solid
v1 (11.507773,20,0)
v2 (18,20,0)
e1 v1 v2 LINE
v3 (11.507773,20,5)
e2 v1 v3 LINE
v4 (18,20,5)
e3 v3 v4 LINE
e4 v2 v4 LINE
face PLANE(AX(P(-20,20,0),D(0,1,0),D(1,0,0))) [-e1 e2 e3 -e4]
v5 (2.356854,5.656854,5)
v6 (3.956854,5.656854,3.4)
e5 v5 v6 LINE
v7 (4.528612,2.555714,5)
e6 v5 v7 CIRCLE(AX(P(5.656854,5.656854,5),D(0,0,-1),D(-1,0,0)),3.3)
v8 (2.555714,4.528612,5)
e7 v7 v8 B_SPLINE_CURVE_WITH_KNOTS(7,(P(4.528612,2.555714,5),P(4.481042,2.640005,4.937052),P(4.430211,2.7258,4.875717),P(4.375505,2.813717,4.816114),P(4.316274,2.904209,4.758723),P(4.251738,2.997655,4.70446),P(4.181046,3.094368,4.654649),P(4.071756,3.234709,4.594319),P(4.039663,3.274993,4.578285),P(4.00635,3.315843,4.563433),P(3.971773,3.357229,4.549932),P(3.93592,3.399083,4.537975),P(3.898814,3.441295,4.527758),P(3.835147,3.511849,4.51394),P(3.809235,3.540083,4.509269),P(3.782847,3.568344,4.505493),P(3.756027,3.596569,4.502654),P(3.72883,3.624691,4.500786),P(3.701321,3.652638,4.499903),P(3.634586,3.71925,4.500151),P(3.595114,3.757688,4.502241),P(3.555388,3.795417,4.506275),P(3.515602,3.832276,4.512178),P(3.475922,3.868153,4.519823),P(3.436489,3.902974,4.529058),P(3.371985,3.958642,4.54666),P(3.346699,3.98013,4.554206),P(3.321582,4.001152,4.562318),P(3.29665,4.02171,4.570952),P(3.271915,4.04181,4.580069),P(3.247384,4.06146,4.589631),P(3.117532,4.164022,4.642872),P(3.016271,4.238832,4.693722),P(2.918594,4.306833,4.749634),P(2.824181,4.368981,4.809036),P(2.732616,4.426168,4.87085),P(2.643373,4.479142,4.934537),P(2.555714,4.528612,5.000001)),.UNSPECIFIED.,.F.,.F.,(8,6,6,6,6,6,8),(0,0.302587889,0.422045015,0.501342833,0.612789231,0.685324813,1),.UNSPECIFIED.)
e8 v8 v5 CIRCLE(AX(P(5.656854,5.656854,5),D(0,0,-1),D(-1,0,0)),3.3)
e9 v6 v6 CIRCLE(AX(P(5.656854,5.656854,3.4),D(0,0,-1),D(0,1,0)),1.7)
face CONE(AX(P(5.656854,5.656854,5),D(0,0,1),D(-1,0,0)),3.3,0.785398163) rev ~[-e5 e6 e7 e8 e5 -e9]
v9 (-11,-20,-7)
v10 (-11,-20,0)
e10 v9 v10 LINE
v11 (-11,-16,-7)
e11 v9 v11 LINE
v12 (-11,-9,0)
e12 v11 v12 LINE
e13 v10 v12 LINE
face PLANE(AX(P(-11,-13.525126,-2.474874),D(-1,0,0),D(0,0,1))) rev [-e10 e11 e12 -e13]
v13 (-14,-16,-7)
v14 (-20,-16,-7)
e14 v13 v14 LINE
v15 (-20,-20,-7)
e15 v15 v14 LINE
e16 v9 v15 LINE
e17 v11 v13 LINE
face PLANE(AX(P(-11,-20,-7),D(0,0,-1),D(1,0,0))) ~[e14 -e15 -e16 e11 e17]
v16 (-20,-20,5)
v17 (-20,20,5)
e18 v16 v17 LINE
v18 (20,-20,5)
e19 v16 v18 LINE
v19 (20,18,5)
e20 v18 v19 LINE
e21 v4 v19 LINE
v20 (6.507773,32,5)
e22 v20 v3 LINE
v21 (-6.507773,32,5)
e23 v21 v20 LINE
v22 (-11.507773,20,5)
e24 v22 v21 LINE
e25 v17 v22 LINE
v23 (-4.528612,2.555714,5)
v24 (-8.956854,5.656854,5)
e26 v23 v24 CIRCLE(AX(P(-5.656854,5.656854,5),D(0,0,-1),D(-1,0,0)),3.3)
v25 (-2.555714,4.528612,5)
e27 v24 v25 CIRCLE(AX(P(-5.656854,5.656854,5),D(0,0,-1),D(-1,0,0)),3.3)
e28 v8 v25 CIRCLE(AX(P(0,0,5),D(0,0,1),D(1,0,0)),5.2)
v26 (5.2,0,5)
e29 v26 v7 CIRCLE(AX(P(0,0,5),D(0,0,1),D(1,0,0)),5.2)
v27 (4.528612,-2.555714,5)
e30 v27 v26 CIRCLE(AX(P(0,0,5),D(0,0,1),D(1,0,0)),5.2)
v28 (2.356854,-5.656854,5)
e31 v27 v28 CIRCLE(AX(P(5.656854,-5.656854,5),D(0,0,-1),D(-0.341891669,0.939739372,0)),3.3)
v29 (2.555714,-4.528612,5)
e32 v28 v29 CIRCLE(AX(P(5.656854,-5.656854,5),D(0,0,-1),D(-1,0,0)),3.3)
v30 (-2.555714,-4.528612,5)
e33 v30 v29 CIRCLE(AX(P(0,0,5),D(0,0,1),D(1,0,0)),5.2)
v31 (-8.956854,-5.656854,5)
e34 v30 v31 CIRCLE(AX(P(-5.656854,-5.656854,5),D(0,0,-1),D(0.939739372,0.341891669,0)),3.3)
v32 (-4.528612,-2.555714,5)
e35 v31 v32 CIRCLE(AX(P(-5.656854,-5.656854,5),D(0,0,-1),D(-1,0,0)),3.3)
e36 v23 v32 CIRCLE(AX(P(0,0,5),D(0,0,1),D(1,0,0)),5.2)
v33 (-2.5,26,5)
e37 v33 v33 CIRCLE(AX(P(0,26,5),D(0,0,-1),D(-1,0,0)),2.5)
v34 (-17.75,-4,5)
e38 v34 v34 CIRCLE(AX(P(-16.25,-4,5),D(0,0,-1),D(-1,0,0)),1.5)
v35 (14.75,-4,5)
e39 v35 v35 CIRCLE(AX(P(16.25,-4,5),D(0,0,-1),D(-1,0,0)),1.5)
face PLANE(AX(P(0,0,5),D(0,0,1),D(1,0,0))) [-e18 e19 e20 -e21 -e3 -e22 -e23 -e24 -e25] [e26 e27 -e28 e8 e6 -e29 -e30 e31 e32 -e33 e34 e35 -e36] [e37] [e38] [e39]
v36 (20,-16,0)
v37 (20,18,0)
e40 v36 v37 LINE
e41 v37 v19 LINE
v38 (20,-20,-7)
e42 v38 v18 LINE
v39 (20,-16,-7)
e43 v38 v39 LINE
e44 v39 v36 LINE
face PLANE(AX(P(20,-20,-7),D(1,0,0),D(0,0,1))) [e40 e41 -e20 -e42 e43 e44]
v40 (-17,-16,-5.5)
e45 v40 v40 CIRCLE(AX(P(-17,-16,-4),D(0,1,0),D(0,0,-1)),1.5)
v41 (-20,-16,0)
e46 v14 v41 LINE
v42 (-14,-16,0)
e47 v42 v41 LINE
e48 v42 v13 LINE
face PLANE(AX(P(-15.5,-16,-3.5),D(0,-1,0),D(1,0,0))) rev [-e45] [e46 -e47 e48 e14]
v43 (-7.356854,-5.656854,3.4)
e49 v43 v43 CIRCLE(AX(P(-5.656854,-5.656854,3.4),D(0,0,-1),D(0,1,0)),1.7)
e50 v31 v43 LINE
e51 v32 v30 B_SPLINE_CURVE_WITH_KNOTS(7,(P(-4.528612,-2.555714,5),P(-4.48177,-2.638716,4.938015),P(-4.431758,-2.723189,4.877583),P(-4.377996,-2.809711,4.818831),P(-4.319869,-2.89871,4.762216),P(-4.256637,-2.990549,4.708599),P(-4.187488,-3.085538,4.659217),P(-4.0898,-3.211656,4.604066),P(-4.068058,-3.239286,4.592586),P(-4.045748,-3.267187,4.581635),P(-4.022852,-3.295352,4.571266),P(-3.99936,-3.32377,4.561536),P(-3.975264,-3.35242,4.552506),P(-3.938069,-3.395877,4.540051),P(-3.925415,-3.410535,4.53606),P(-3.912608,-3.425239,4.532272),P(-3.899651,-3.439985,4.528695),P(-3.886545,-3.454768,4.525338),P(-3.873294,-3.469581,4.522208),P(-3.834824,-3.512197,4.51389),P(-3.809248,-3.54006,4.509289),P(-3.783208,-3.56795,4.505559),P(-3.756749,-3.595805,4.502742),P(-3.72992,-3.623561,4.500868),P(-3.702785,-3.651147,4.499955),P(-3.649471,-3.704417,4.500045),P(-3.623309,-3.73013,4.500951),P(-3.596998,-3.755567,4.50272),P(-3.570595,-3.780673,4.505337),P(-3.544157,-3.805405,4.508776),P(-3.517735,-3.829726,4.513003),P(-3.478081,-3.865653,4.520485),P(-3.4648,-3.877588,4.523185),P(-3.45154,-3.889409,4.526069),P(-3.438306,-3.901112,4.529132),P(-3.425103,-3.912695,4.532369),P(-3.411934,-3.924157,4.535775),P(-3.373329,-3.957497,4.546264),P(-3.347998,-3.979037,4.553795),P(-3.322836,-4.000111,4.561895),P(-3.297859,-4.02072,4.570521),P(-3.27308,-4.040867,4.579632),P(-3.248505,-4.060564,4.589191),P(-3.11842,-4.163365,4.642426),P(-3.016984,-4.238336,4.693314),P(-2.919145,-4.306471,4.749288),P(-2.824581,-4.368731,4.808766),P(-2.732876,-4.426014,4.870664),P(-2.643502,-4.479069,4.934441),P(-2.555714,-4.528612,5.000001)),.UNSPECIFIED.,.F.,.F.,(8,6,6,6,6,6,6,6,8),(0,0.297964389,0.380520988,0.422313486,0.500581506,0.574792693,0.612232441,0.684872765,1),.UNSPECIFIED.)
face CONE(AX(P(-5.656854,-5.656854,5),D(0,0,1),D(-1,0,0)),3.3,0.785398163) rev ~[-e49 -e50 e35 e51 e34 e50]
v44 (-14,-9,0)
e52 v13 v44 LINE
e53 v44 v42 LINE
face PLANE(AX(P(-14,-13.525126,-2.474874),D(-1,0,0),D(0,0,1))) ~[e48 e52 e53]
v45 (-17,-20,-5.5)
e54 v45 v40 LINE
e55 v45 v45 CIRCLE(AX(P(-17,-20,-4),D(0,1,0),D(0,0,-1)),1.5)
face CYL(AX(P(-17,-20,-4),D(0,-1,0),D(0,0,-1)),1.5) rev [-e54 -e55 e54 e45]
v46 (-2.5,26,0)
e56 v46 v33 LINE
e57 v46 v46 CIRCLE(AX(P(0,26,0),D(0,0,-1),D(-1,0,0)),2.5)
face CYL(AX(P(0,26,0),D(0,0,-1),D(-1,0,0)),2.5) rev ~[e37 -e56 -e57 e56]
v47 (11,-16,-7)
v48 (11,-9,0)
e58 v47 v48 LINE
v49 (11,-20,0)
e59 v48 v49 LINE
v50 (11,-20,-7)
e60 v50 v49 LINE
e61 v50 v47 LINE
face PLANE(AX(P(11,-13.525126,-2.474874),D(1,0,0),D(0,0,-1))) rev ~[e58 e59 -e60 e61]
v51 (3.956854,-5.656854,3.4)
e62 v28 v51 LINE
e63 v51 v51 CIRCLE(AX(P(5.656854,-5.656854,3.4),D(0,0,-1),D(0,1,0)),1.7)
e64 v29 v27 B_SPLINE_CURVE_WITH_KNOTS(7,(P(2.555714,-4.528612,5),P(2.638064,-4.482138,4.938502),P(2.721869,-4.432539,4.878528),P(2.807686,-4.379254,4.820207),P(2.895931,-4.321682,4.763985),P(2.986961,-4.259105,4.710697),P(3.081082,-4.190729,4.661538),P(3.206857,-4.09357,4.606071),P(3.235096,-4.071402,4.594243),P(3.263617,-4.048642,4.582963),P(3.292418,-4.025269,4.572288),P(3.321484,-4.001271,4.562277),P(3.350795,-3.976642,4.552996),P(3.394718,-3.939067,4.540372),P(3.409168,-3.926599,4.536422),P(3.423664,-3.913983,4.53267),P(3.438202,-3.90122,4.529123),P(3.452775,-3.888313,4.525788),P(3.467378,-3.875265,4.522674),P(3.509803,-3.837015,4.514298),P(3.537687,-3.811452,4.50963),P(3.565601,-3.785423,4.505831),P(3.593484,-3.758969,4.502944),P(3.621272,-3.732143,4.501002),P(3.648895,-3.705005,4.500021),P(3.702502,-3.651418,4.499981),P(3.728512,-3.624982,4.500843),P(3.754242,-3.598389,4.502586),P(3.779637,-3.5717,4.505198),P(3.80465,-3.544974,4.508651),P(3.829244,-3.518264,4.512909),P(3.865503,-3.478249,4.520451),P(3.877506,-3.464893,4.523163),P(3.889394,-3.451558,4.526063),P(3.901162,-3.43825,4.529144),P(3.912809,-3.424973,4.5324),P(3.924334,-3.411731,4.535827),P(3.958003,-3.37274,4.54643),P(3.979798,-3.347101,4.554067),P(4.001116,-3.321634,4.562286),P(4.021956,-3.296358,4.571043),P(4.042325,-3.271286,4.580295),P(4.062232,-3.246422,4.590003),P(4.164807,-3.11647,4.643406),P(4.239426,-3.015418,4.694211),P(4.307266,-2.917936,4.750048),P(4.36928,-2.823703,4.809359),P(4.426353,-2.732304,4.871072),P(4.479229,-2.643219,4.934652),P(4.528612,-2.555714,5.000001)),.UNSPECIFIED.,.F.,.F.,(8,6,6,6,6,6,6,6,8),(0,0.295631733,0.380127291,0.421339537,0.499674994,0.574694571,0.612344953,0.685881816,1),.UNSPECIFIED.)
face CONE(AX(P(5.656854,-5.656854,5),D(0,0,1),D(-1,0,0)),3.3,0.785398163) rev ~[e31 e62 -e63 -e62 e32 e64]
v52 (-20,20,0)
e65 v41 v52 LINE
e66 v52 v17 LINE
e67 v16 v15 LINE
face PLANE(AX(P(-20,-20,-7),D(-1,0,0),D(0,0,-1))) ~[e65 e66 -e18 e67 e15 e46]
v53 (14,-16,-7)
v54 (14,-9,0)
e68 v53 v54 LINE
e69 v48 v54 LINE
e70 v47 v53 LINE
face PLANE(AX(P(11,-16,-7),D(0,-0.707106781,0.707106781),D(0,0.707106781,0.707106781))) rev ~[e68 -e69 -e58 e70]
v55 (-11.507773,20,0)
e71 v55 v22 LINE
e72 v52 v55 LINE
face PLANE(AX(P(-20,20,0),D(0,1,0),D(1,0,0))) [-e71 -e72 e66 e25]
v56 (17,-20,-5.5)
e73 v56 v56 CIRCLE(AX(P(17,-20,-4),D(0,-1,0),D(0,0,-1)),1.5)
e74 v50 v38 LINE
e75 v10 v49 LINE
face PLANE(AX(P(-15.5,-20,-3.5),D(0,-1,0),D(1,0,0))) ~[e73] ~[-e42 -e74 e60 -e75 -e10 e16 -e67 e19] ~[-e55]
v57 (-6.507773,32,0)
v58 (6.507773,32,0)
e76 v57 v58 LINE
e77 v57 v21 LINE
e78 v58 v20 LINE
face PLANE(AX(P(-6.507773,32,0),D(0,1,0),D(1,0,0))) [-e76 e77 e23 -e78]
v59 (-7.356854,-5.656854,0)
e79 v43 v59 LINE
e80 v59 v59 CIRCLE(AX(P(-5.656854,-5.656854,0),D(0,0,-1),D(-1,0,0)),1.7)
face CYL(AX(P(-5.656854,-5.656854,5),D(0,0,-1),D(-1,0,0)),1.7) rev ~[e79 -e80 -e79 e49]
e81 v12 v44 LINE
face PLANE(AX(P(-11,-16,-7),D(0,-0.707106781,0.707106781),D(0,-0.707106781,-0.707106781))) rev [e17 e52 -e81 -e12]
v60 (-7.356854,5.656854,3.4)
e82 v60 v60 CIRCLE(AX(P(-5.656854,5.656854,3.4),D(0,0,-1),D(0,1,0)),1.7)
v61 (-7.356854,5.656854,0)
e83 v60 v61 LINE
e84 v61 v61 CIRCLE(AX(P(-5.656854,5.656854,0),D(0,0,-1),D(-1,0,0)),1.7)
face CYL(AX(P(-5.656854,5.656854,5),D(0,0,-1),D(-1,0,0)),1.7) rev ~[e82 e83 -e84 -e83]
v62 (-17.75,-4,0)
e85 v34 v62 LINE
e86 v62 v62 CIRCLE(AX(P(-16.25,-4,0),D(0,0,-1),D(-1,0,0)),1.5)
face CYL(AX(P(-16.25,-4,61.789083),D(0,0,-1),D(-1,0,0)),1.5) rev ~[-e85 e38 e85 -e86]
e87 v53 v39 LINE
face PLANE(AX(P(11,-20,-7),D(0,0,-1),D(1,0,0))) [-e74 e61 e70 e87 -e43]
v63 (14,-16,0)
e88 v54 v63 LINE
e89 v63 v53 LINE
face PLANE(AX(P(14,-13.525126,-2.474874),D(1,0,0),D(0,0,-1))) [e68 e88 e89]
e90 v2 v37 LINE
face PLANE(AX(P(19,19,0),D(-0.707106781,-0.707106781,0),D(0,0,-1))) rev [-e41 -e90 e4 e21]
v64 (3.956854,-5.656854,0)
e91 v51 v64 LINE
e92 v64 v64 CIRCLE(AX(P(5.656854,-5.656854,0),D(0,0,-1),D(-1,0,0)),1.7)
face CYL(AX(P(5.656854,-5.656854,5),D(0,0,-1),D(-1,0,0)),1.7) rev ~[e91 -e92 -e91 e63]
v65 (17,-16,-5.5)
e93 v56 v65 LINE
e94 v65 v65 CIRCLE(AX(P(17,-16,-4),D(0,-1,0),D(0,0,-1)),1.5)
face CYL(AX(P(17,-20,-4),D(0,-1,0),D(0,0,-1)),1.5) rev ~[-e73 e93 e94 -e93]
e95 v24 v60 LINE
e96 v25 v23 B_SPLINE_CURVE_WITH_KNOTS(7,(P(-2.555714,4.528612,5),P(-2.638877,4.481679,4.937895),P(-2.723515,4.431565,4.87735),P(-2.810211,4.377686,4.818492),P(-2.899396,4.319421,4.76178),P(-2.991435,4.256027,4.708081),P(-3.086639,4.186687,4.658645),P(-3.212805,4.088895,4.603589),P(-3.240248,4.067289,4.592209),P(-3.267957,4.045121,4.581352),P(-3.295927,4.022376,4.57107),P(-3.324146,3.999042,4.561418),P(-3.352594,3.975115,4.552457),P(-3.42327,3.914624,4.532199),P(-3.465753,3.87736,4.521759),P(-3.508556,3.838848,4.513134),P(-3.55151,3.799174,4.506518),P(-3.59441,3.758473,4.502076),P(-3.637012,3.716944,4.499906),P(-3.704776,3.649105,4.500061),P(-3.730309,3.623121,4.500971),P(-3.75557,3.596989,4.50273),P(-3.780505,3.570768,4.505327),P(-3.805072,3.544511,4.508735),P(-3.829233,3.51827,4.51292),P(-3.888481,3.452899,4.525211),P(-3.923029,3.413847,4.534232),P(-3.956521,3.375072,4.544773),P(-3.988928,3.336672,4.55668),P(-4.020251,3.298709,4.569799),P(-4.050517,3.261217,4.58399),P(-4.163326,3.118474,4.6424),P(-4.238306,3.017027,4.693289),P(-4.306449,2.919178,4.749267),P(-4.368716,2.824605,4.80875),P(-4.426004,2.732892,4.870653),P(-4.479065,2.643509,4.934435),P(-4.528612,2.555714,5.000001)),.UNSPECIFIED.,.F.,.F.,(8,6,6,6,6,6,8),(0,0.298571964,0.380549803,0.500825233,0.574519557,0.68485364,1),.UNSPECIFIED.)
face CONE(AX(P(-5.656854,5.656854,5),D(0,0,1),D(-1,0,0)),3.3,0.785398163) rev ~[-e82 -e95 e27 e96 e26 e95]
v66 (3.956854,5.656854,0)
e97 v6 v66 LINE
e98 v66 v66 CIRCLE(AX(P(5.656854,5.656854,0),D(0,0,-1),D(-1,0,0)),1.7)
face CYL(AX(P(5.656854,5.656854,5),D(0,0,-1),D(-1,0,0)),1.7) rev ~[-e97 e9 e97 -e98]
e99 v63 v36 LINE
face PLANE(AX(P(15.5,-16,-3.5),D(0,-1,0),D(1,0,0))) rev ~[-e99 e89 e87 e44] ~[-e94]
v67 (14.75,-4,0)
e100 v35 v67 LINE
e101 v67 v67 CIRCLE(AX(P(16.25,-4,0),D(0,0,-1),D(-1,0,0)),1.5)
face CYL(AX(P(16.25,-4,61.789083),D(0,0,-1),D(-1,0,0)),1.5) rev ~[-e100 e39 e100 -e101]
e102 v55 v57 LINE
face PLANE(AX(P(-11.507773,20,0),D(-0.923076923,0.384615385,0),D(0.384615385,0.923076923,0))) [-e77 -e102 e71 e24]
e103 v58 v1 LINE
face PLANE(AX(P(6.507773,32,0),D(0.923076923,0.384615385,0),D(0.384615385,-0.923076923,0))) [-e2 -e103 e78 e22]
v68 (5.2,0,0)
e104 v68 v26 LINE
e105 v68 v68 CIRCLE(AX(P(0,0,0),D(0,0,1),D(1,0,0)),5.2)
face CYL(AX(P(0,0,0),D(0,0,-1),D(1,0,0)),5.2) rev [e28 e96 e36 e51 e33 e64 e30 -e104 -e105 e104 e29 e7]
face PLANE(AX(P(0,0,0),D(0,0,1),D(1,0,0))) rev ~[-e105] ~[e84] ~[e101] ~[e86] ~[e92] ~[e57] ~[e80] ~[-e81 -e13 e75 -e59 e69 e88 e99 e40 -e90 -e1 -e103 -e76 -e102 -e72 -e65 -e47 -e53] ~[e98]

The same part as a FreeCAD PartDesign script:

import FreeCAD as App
import Part
import Sketcher


def edges_at(feature, points):
    """Names of the edges that pass closest to the given points."""
    edges = feature.Shape.Edges
    near = lambda p: min(range(len(edges)), key=lambda i: edges[i].distToShape(Part.Vertex(*p))[0])
    return sorted({f"Edge{near(p) + 1}" for p in points})


def add_polygon(sketch, points):
    """Adds a closed chain of lines whose ends are joined by coincident constraints."""
    first, n = sketch.GeometryCount, len(points)
    for a, b in zip(points, points[1:] + points[:1]):
        sketch.addGeometry(Part.LineSegment(App.Vector(*a, 0), App.Vector(*b, 0)), False)
    for i in range(n):
        sketch.addConstraint(Sketcher.Constraint("Coincident", first + i, 2, first + (i + 1) % n, 1))

doc = App.newDocument("Part")
body = doc.addObject("PartDesign::Body", "Body")

# Sketch on XY plane
sketch1 = body.newObject("Sketcher::SketchObject", "Sketch")
sketch1.AttachmentSupport = (doc.getObject("XY_Plane"), [""])
sketch1.MapMode = "FlatFace"
add_polygon(sketch1, [(-20, 20), (-20, -20), (20, -20), (20, 20)])  # lines 0-3
sketch1.addGeometry(Part.Circle(App.Vector(-5.7, -5.7, 0), App.Vector(0, 0, 1), 1.6), False)  # 4
sketch1.addGeometry(Part.Circle(App.Vector(5.7, -5.7, 0), App.Vector(0, 0, 1), 1.6), False)  # 5
sketch1.addGeometry(Part.Circle(App.Vector(-5.7, 5.7, 0), App.Vector(0, 0, 1), 1.6), False)  # 6
sketch1.addGeometry(Part.Circle(App.Vector(0, 0, 0), App.Vector(0, 0, 1), 5.2), False)  # 7
sketch1.addGeometry(Part.Circle(App.Vector(5.7, 5.7, 0), App.Vector(0, 0, 1), 1.6), False)  # 8
sketch1.addConstraint(Sketcher.Constraint("Vertical", 0))
sketch1.addConstraint(Sketcher.Constraint("Horizontal", 1))
sketch1.addConstraint(Sketcher.Constraint("Vertical", 2))
sketch1.addConstraint(Sketcher.Constraint("Horizontal", 3))
sketch1.addConstraint(Sketcher.Constraint("Coincident", 7, 3, -1, 1))
sketch1.addConstraint(Sketcher.Constraint("Equal", 4, 5))
sketch1.addConstraint(Sketcher.Constraint("Equal", 5, 6))
sketch1.addConstraint(Sketcher.Constraint("Equal", 6, 8))
sketch1.addConstraint(Sketcher.Constraint("Symmetric", 5, 3, 6, 3, -1, 1))
sketch1.addConstraint(Sketcher.Constraint("Symmetric", 4, 3, 8, 3, -1, 1))
sketch1.addConstraint(Sketcher.Constraint("Symmetric", 0, 2, 2, 2, -1, 1))
sketch1.addConstraint(Sketcher.Constraint("Symmetric", 4, 3, 5, 3, -2))
sketch1.addConstraint(Sketcher.Constraint("Equal", 3, 0))
sketch1.addConstraint(Sketcher.Constraint("Diameter", 4, 3.2))
sketch1.addConstraint(Sketcher.Constraint("Diameter", 7, 10.4))
sketch1.addConstraint(Sketcher.Constraint("DistanceX", 1, 1, 1, 2, 40.0))
sketch1.addConstraint(Sketcher.Constraint("DistanceX", 4, 3, 5, 3, 11.313708))
sketch1.addConstraint(Sketcher.Constraint("DistanceY", 4, 3, 6, 3, 11.313708))
pad1 = body.newObject("PartDesign::Pad", "Pad")
pad1.Profile = sketch1
pad1.Length = 5

# Sketch on XY plane
sketch2 = body.newObject("Sketcher::SketchObject", "Sketch001")
sketch2.AttachmentSupport = (doc.getObject("XY_Plane"), [""])
sketch2.MapMode = "FlatFace"
sketch2.AttachmentOffset = App.Placement(App.Vector(0, 0, 5), App.Rotation())
sketch2.addGeometry(Part.Circle(App.Vector(16.2, -4, 0), App.Vector(0, 0, 1), 1.5), False)
sketch2.addGeometry(Part.Circle(App.Vector(-16.2, -4, 0), App.Vector(0, 0, 1), 1.5), False)
sketch2.addConstraint(Sketcher.Constraint("Equal", 0, 1))
sketch2.addConstraint(Sketcher.Constraint("Symmetric", 0, 3, 1, 3, -2))
sketch2.addConstraint(Sketcher.Constraint("Diameter", 0, 3.0))
sketch2.addConstraint(Sketcher.Constraint("DistanceY", 0, 3, -1, 1, 4.0))
sketch2.addConstraint(Sketcher.Constraint("DistanceX", 1, 3, 0, 3, 32.5))
doc.recompute()
hole = body.newObject("PartDesign::Hole", "Hole")
hole.Profile = sketch2
hole.ThreadType = "None"
hole.Diameter = 3
hole.DepthType = "ThroughAll"
doc.recompute()

chamfer = body.newObject("PartDesign::Chamfer", "Chamfer")
chamfer.Base = (hole, edges_at(hole, [(20, 20, 2.5)]))
chamfer.Size = 2

# Sketch on XY plane
sketch3 = body.newObject("Sketcher::SketchObject", "Sketch002")
sketch3.AttachmentSupport = (doc.getObject("XY_Plane"), [""])
sketch3.MapMode = "FlatFace"
sketch3.AttachmentOffset = App.Placement(App.Vector(0, 0, 5), App.Rotation())
sketch3.addGeometry(Part.Circle(App.Vector(-5.7, 5.7, 0), App.Vector(0, 0, 1), 1.7), False)
sketch3.addGeometry(Part.Circle(App.Vector(5.7, 5.7, 0), App.Vector(0, 0, 1), 1.7), False)
sketch3.addGeometry(Part.Circle(App.Vector(5.7, -5.7, 0), App.Vector(0, 0, 1), 1.7), False)
sketch3.addGeometry(Part.Circle(App.Vector(-5.7, -5.7, 0), App.Vector(0, 0, 1), 1.7), False)
sketch3.addConstraint(Sketcher.Constraint("Equal", 0, 1))
sketch3.addConstraint(Sketcher.Constraint("Equal", 1, 2))
sketch3.addConstraint(Sketcher.Constraint("Equal", 2, 3))
sketch3.addConstraint(Sketcher.Constraint("Symmetric", 0, 3, 2, 3, -1, 1))
sketch3.addConstraint(Sketcher.Constraint("Symmetric", 1, 3, 3, 3, -1, 1))
sketch3.addConstraint(Sketcher.Constraint("Symmetric", 0, 3, 1, 3, -2))
sketch3.addConstraint(Sketcher.Constraint("Diameter", 0, 3.4))
sketch3.addConstraint(Sketcher.Constraint("DistanceX", 0, 3, 1, 3, 11.313708))
sketch3.addConstraint(Sketcher.Constraint("DistanceY", 2, 3, 1, 3, 11.313708))
doc.recompute()
hole2 = body.newObject("PartDesign::Hole", "Hole001")
hole2.Profile = sketch3
hole2.ThreadType = "None"
hole2.Diameter = 3.4
hole2.DepthType = "ThroughAll"
hole2.HoleCutType = "Countersink"
hole2.HoleCutDiameter = 6.6
hole2.HoleCutCountersinkAngle = 90

# Sketch on XY plane
sketch4 = body.newObject("Sketcher::SketchObject", "Sketch003")
sketch4.AttachmentSupport = (doc.getObject("XY_Plane"), [""])
sketch4.MapMode = "FlatFace"
add_polygon(sketch4, [(11.5, 20), (-11.5, 20), (-6.5, 32), (6.5, 32)])  # lines 0-3
sketch4.addGeometry(Part.Circle(App.Vector(0, 26, 0), App.Vector(0, 0, 1), 2.5), False)  # 4
sketch4.addConstraint(Sketcher.Constraint("Horizontal", 0))
sketch4.addConstraint(Sketcher.Constraint("Horizontal", 2))
sketch4.addConstraint(Sketcher.Constraint("PointOnObject", 4, 3, -2))
sketch4.addConstraint(Sketcher.Constraint("Equal", 1, 3))
sketch4.addConstraint(Sketcher.Constraint("Diameter", 4, 5.0))
sketch4.addConstraint(Sketcher.Constraint("Distance", 1, 13.0))
sketch4.addConstraint(Sketcher.Constraint("DistanceY", -1, 1, 4, 3, 26.0))
sketch4.addConstraint(Sketcher.Constraint("DistanceY", -1, 1, 0, 2, 20.0))
sketch4.addConstraint(Sketcher.Constraint("DistanceY", -1, 1, 1, 2, 32.0))
sketch4.addConstraint(Sketcher.Constraint("DistanceX", 0, 2, 0, 1, 23.015545))
sketch4.addConstraint(Sketcher.Constraint("DistanceX", 0, 2, -1, 1, 11.507773))
pad2 = body.newObject("PartDesign::Pad", "Pad001")
pad2.Profile = sketch4
pad2.Length = 5

# Sketch on XZ plane
sketch5 = body.newObject("Sketcher::SketchObject", "Sketch004")
sketch5.AttachmentSupport = (doc.getObject("XZ_Plane"), [""])
sketch5.MapMode = "FlatFace"
sketch5.AttachmentOffset = App.Placement(App.Vector(0, 0, 20), App.Rotation())
add_polygon(sketch5, [(11, 0), (11, -7), (20, -7), (20, 0)])  # lines 0-3
sketch5.addGeometry(Part.Circle(App.Vector(17, -4, 0), App.Vector(0, 0, 1), 1.5), False)  # 4
sketch5.addConstraint(Sketcher.Constraint("Vertical", 0))
sketch5.addConstraint(Sketcher.Constraint("Horizontal", 1))
sketch5.addConstraint(Sketcher.Constraint("Vertical", 2))
sketch5.addConstraint(Sketcher.Constraint("Horizontal", 3))
sketch5.addConstraint(Sketcher.Constraint("PointOnObject", 2, 2, -1))
sketch5.addConstraint(Sketcher.Constraint("Diameter", 4, 3.0))
sketch5.addConstraint(Sketcher.Constraint("DistanceX", 1, 1, 1, 2, 9.0))
sketch5.addConstraint(Sketcher.Constraint("DistanceY", 0, 2, 0, 1, 7.0))
sketch5.addConstraint(Sketcher.Constraint("DistanceX", -1, 1, 4, 3, 17.0))
sketch5.addConstraint(Sketcher.Constraint("DistanceY", 4, 3, -1, 1, 4.0))
sketch5.addConstraint(Sketcher.Constraint("DistanceX", -1, 1, 0, 2, 11.0))
pad3 = body.newObject("PartDesign::Pad", "Pad002")
pad3.Profile = sketch5
pad3.Length = 4
pad3.Reversed = True

# Sketch on YZ plane
sketch6 = body.newObject("Sketcher::SketchObject", "Sketch005")
sketch6.AttachmentSupport = (doc.getObject("YZ_Plane"), [""])
sketch6.MapMode = "FlatFace"
sketch6.AttachmentOffset = App.Placement(App.Vector(0, 0, 11), App.Rotation())
add_polygon(sketch6, [(-9, 0), (-16, -7), (-16, 0)])  # lines 0-2
sketch6.addConstraint(Sketcher.Constraint("Vertical", 1))
sketch6.addConstraint(Sketcher.Constraint("Horizontal", 2))
sketch6.addConstraint(Sketcher.Constraint("PointOnObject", 1, 2, -1))
sketch6.addConstraint(Sketcher.Constraint("Equal", 2, 1))
sketch6.addConstraint(Sketcher.Constraint("DistanceX", 2, 1, 2, 2, 7.0))
sketch6.addConstraint(Sketcher.Constraint("DistanceX", 0, 2, -1, 1, 16.0))
pad4 = body.newObject("PartDesign::Pad", "Pad003")
pad4.Profile = sketch6
pad4.Length = 3
doc.recompute()

mirrored = body.newObject("PartDesign::Mirrored", "Mirrored")
mirrored.Originals = [pad3, pad4]
mirrored.MirrorPlane = (doc.getObject("YZ_Plane"), [""])
body.Tip = mirrored

doc.recompute()
